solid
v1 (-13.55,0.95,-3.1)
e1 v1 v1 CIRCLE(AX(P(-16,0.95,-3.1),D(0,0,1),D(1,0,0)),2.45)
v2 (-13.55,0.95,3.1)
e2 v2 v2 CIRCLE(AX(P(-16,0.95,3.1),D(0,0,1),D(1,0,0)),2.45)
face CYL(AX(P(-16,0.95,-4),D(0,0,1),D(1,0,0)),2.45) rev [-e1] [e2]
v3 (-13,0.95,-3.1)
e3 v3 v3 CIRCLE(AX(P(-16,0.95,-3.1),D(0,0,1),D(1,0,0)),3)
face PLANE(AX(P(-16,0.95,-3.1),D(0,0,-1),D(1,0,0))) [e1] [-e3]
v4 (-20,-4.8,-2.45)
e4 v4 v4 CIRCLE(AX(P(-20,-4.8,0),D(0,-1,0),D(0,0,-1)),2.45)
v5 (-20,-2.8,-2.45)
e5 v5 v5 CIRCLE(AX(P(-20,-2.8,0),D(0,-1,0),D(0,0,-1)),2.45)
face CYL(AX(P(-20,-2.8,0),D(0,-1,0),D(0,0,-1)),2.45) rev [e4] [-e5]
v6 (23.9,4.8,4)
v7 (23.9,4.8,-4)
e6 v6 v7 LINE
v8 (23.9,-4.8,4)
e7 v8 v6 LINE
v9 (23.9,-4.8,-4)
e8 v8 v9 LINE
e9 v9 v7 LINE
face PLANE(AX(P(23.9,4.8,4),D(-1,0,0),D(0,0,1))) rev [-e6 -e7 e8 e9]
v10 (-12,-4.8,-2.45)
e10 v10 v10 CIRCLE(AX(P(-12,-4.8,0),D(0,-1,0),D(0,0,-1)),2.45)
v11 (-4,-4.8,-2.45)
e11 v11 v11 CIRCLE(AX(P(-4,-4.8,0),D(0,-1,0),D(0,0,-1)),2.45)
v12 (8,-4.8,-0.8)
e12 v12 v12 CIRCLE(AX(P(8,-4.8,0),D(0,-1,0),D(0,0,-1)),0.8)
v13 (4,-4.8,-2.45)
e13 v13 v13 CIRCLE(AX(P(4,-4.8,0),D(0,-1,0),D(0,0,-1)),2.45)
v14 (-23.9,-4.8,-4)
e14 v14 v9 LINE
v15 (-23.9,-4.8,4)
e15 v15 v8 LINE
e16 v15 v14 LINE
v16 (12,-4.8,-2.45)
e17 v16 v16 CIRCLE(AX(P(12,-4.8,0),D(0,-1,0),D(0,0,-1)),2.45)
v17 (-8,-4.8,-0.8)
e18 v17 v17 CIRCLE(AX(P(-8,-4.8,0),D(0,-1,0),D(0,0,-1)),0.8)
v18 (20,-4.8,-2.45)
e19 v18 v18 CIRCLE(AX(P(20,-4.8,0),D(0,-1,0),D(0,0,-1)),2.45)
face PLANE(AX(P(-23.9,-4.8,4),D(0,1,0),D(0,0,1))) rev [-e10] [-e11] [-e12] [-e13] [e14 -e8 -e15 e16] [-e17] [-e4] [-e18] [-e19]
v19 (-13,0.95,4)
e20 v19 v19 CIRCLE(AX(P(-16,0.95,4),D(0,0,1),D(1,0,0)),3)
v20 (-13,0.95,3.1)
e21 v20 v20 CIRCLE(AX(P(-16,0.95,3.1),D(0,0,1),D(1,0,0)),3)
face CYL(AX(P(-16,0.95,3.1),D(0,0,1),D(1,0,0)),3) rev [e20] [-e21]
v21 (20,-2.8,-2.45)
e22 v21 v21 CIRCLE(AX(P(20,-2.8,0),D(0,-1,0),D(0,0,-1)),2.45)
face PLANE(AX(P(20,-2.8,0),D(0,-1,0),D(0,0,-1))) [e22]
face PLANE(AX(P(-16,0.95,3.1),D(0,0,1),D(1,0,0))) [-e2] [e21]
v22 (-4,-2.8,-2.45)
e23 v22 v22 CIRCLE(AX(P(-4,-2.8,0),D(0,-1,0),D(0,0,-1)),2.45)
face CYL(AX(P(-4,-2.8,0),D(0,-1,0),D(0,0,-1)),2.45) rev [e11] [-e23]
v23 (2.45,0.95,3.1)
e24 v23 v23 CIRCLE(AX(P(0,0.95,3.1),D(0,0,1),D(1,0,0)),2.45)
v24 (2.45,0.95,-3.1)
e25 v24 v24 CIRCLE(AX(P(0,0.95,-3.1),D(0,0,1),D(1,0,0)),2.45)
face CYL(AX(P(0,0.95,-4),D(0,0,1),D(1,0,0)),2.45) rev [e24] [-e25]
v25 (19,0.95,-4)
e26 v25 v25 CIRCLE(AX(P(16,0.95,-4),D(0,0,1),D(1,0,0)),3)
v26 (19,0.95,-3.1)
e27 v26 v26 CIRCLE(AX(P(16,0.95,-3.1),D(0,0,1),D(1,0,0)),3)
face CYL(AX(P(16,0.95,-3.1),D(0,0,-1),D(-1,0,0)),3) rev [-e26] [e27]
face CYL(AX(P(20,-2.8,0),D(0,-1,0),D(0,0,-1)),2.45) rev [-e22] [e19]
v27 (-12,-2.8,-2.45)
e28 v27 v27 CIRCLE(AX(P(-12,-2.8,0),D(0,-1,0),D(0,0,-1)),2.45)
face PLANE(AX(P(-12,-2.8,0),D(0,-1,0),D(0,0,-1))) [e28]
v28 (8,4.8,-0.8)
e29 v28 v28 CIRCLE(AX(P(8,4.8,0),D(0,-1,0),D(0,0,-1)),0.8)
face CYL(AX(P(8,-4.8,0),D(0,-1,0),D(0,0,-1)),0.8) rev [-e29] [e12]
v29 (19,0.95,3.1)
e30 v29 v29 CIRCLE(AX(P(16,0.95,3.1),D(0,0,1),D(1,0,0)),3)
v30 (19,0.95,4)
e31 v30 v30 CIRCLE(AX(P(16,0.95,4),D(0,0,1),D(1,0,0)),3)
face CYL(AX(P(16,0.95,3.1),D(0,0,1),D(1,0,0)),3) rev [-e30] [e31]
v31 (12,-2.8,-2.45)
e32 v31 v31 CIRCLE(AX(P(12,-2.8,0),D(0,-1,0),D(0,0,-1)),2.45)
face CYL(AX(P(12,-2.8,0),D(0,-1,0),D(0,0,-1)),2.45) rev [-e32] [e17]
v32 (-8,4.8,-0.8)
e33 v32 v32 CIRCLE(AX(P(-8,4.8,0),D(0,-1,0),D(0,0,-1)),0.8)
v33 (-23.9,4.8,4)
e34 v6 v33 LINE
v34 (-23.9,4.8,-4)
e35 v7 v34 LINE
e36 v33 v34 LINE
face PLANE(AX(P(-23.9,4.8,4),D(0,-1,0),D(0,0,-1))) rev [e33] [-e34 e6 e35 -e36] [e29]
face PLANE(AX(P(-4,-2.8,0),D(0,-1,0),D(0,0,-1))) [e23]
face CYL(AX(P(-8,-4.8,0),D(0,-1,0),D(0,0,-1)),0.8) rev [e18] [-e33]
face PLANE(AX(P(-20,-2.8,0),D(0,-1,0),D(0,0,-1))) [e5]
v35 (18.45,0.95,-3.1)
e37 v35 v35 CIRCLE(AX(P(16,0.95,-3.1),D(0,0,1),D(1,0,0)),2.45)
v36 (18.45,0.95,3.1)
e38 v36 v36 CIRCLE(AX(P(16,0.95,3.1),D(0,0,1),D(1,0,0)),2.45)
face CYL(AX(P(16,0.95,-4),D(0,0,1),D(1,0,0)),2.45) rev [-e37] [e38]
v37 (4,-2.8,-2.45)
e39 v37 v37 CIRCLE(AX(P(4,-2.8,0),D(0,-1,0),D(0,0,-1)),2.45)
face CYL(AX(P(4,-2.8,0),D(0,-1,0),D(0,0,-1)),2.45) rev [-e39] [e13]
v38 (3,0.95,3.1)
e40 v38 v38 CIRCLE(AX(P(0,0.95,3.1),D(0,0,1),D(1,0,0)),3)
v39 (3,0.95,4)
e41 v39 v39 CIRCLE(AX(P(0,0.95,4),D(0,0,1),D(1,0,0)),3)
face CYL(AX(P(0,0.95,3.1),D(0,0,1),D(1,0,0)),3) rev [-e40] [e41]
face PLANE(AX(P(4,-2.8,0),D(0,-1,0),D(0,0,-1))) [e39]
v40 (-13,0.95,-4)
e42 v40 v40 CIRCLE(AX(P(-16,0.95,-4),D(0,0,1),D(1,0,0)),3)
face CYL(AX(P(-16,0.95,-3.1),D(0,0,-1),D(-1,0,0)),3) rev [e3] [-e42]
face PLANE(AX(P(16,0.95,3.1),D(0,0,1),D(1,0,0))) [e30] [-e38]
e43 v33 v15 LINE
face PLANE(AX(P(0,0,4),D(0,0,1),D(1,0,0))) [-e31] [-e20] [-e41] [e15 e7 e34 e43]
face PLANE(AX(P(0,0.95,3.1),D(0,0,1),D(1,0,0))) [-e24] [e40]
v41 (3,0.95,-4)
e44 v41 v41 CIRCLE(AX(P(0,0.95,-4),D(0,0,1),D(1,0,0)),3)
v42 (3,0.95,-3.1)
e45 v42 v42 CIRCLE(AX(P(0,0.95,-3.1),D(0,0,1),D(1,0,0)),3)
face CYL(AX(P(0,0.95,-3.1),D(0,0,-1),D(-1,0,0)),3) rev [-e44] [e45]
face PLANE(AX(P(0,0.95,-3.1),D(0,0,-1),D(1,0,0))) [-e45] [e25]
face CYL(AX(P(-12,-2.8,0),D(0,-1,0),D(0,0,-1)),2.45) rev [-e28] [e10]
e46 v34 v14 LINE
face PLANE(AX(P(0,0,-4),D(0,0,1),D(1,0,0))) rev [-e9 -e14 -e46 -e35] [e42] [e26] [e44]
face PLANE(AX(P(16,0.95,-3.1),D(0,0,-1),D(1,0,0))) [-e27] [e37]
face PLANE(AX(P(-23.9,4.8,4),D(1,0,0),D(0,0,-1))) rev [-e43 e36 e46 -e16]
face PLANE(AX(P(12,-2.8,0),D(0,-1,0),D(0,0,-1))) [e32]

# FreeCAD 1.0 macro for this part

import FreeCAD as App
import Part
import Sketcher
from FreeCAD import Vector
Q = App.Units.Quantity


def add_polygon(sketch, points):
    """Adds a closed chain of lines whose ends are joined by coincident constraints."""
    first, n = sketch.GeometryCount, len(points)
    for a, b in zip(points, points[1:] + points[:1]):
        sketch.addGeometry(Part.LineSegment(App.Vector(*a, 0), App.Vector(*b, 0)), False)
    for i in range(n):
        sketch.addConstraint(Sketcher.Constraint("Coincident", first + i, 2, first + (i + 1) % n, 1))

doc = App.newDocument("Part")
body = doc.addObject("PartDesign::Body", "Body")

# Sketch on XY plane
sketch1 = body.newObject("Sketcher::SketchObject", "Sketch")
sketch1.AttachmentSupport = (doc.getObject("XY_Plane"), [""])
sketch1.MapMode = "FlatFace"
add_polygon(sketch1, [(-23.9, 4.8), (-23.9, -4.8), (23.9, -4.8), (23.9, 4.8)])  # lines 0-3
sketch1.addConstraint(Sketcher.Constraint("Vertical", 0))
sketch1.addConstraint(Sketcher.Constraint("Horizontal", 1))
sketch1.addConstraint(Sketcher.Constraint("Vertical", 2))
sketch1.addConstraint(Sketcher.Constraint("Horizontal", 3))
sketch1.addConstraint(Sketcher.Constraint("Symmetric", 0, 2, 2, 2, -1, 1))
sketch1.addConstraint(Sketcher.Constraint("DistanceX", 1, 1, 1, 2, Q("47.8 mm")))
sketch1.addConstraint(Sketcher.Constraint("DistanceY", 0, 2, 0, 1, Q("9.6 mm")))
pad1 = body.newObject("PartDesign::Pad", "Pad")
pad1.Profile = sketch1
pad1.Length = 8
pad1.Midplane = True

# Sketch on XY plane
sketch2 = body.newObject("Sketcher::SketchObject", "Sketch001")
sketch2.AttachmentSupport = (doc.getObject("XY_Plane"), [""])
sketch2.MapMode = "FlatFace"
sketch2.AttachmentOffset = App.Placement(Vector(0, 0, 4), App.Rotation())
sketch2.addGeometry(Part.Circle(Vector(-16, 0.95, 0), Vector(0, 0, 1), 2.45), False)
sketch2.addGeometry(Part.Circle(Vector(0, 0.95, 0), Vector(0, 0, 1), 2.45), False)
sketch2.addGeometry(Part.Circle(Vector(16, 0.95, 0), Vector(0, 0, 1), 2.45), False)
sketch2.addConstraint(Sketcher.Constraint("Equal", 0, 1))
sketch2.addConstraint(Sketcher.Constraint("Equal", 1, 2))
sketch2.addConstraint(Sketcher.Constraint("Symmetric", 0, 3, 2, 3, -2))
sketch2.addConstraint(Sketcher.Constraint("PointOnObject", 1, 3, -2))
sketch2.addConstraint(Sketcher.Constraint("Horizontal", 0, 3, 1, 3))
sketch2.addConstraint(Sketcher.Constraint("Diameter", 0, Q("4.9 mm")))
sketch2.addConstraint(Sketcher.Constraint("DistanceX", 0, 3, -1, 1, Q("16 mm")))
sketch2.addConstraint(Sketcher.Constraint("DistanceY", -1, 1, 0, 3, Q("0.95 mm")))
pocket1 = body.newObject("PartDesign::Pocket", "Pocket")
pocket1.Profile = sketch2
pocket1.Type = "ThroughAll"

# Sketch on XY plane
sketch3 = body.newObject("Sketcher::SketchObject", "Sketch002")
sketch3.AttachmentSupport = (doc.getObject("XY_Plane"), [""])
sketch3.MapMode = "FlatFace"
sketch3.AttachmentOffset = App.Placement(Vector(0, 0, 4), App.Rotation())
sketch3.addGeometry(Part.Circle(Vector(-16, 0.95, 0), Vector(0, 0, 1), 3), False)
sketch3.addGeometry(Part.Circle(Vector(-16, 0.95, 0), Vector(0, 0, 1), 2.45), False)
sketch3.addGeometry(Part.Circle(Vector(0, 0.95, 0), Vector(0, 0, 1), 3), False)
sketch3.addGeometry(Part.Circle(Vector(0, 0.95, 0), Vector(0, 0, 1), 2.45), False)
sketch3.addGeometry(Part.Circle(Vector(16, 0.95, 0), Vector(0, 0, 1), 3), False)
sketch3.addGeometry(Part.Circle(Vector(16, 0.95, 0), Vector(0, 0, 1), 2.45), False)
sketch3.addConstraint(Sketcher.Constraint("Coincident", 1, 3, 0, 3))
sketch3.addConstraint(Sketcher.Constraint("Coincident", 3, 3, 2, 3))
sketch3.addConstraint(Sketcher.Constraint("Coincident", 5, 3, 4, 3))
sketch3.addConstraint(Sketcher.Constraint("Equal", 0, 2))
sketch3.addConstraint(Sketcher.Constraint("Equal", 1, 3))
sketch3.addConstraint(Sketcher.Constraint("Equal", 2, 4))
sketch3.addConstraint(Sketcher.Constraint("Equal", 3, 5))
sketch3.addConstraint(Sketcher.Constraint("Symmetric", 0, 3, 4, 3, -2))
sketch3.addConstraint(Sketcher.Constraint("PointOnObject", 2, 3, -2))
sketch3.addConstraint(Sketcher.Constraint("Horizontal", 1, 3, 2, 3))
sketch3.addConstraint(Sketcher.Constraint("Diameter", 0, Q("6 mm")))
sketch3.addConstraint(Sketcher.Constraint("Diameter", 1, Q("4.9 mm")))
sketch3.addConstraint(Sketcher.Constraint("DistanceX", 0, 3, -1, 1, Q("16 mm")))
sketch3.addConstraint(Sketcher.Constraint("DistanceY", -1, 1, 0, 3, Q("0.95 mm")))
pocket2 = body.newObject("PartDesign::Pocket", "Pocket001")
pocket2.Profile = sketch3
pocket2.Length = 0.9
doc.recompute()

mirrored = body.newObject("PartDesign::Mirrored", "Mirrored")
mirrored.Originals = [pocket2]
mirrored.MirrorPlane = (doc.getObject("XY_Plane"), [""])
body.Tip = mirrored

# Sketch on XZ plane
sketch4 = body.newObject("Sketcher::SketchObject", "Sketch003")
sketch4.AttachmentSupport = (doc.getObject("XZ_Plane"), [""])
sketch4.MapMode = "FlatFace"
sketch4.AttachmentOffset = App.Placement(Vector(0, 0, 4.8), App.Rotation())
sketch4.addGeometry(Part.Circle(Vector(8, 0, 0), Vector(0, 0, 1), 0.8), False)
sketch4.addGeometry(Part.Circle(Vector(-8, 0, 0), Vector(0, 0, 1), 0.8), False)
sketch4.addConstraint(Sketcher.Constraint("Equal", 0, 1))
sketch4.addConstraint(Sketcher.Constraint("Symmetric", 0, 3, 1, 3, -1, 1))
sketch4.addConstraint(Sketcher.Constraint("PointOnObject", 0, 3, -1))
sketch4.addConstraint(Sketcher.Constraint("Diameter", 0, Q("1.6 mm")))
sketch4.addConstraint(Sketcher.Constraint("DistanceX", -1, 1, 0, 3, Q("8 mm")))
doc.recompute()
hole = body.newObject("PartDesign::Hole", "Hole")
hole.Profile = sketch4
hole.ThreadType = "None"
hole.Diameter = 1.6
hole.DepthType = "ThroughAll"

# Sketch on XZ plane
sketch5 = body.newObject("Sketcher::SketchObject", "Sketch004")
sketch5.AttachmentSupport = (doc.getObject("XZ_Plane"), [""])
sketch5.MapMode = "FlatFace"
sketch5.AttachmentOffset = App.Placement(Vector(0, 0, 4.8), App.Rotation())
sketch5.addGeometry(Part.Circle(Vector(-20, 0, 0), Vector(0, 0, 1), 2.45), False)
sketch5.addGeometry(Part.Circle(Vector(-4, 0, 0), Vector(0, 0, 1), 2.45), False)
sketch5.addGeometry(Part.Circle(Vector(-12, 0, 0), Vector(0, 0, 1), 2.45), False)
sketch5.addGeometry(Part.Circle(Vector(4, 0, 0), Vector(0, 0, 1), 2.45), False)
sketch5.addGeometry(Part.Circle(Vector(12, 0, 0), Vector(0, 0, 1), 2.45), False)
sketch5.addGeometry(Part.Circle(Vector(20, 0, 0), Vector(0, 0, 1), 2.45), False)
sketch5.addConstraint(Sketcher.Constraint("Equal", 0, 1))
sketch5.addConstraint(Sketcher.Constraint("Equal", 1, 2))
sketch5.addConstraint(Sketcher.Constraint("Equal", 2, 3))
sketch5.addConstraint(Sketcher.Constraint("Equal", 3, 4))
sketch5.addConstraint(Sketcher.Constraint("Equal", 4, 5))
sketch5.addConstraint(Sketcher.Constraint("Symmetric", 1, 3, 3, 3, -1, 1))
sketch5.addConstraint(Sketcher.Constraint("Symmetric", 2, 3, 4, 3, -1, 1))
sketch5.addConstraint(Sketcher.Constraint("Symmetric", 0, 3, 5, 3, -1, 1))
sketch5.addConstraint(Sketcher.Constraint("PointOnObject", 0, 3, -1))
sketch5.addConstraint(Sketcher.Constraint("PointOnObject", 1, 3, -1))
sketch5.addConstraint(Sketcher.Constraint("PointOnObject", 2, 3, -1))
sketch5.addConstraint(Sketcher.Constraint("Diameter", 0, Q("4.9 mm")))
sketch5.addConstraint(Sketcher.Constraint("DistanceX", 0, 3, -1, 1, Q("20 mm")))
sketch5.addConstraint(Sketcher.Constraint("DistanceX", 1, 3, -1, 1, Q("4 mm")))
sketch5.addConstraint(Sketcher.Constraint("DistanceX", 2, 3, -1, 1, Q("12 mm")))
pocket3 = body.newObject("PartDesign::Pocket", "Pocket002")
pocket3.Profile = sketch5
pocket3.Length = 2

doc.recompute()
